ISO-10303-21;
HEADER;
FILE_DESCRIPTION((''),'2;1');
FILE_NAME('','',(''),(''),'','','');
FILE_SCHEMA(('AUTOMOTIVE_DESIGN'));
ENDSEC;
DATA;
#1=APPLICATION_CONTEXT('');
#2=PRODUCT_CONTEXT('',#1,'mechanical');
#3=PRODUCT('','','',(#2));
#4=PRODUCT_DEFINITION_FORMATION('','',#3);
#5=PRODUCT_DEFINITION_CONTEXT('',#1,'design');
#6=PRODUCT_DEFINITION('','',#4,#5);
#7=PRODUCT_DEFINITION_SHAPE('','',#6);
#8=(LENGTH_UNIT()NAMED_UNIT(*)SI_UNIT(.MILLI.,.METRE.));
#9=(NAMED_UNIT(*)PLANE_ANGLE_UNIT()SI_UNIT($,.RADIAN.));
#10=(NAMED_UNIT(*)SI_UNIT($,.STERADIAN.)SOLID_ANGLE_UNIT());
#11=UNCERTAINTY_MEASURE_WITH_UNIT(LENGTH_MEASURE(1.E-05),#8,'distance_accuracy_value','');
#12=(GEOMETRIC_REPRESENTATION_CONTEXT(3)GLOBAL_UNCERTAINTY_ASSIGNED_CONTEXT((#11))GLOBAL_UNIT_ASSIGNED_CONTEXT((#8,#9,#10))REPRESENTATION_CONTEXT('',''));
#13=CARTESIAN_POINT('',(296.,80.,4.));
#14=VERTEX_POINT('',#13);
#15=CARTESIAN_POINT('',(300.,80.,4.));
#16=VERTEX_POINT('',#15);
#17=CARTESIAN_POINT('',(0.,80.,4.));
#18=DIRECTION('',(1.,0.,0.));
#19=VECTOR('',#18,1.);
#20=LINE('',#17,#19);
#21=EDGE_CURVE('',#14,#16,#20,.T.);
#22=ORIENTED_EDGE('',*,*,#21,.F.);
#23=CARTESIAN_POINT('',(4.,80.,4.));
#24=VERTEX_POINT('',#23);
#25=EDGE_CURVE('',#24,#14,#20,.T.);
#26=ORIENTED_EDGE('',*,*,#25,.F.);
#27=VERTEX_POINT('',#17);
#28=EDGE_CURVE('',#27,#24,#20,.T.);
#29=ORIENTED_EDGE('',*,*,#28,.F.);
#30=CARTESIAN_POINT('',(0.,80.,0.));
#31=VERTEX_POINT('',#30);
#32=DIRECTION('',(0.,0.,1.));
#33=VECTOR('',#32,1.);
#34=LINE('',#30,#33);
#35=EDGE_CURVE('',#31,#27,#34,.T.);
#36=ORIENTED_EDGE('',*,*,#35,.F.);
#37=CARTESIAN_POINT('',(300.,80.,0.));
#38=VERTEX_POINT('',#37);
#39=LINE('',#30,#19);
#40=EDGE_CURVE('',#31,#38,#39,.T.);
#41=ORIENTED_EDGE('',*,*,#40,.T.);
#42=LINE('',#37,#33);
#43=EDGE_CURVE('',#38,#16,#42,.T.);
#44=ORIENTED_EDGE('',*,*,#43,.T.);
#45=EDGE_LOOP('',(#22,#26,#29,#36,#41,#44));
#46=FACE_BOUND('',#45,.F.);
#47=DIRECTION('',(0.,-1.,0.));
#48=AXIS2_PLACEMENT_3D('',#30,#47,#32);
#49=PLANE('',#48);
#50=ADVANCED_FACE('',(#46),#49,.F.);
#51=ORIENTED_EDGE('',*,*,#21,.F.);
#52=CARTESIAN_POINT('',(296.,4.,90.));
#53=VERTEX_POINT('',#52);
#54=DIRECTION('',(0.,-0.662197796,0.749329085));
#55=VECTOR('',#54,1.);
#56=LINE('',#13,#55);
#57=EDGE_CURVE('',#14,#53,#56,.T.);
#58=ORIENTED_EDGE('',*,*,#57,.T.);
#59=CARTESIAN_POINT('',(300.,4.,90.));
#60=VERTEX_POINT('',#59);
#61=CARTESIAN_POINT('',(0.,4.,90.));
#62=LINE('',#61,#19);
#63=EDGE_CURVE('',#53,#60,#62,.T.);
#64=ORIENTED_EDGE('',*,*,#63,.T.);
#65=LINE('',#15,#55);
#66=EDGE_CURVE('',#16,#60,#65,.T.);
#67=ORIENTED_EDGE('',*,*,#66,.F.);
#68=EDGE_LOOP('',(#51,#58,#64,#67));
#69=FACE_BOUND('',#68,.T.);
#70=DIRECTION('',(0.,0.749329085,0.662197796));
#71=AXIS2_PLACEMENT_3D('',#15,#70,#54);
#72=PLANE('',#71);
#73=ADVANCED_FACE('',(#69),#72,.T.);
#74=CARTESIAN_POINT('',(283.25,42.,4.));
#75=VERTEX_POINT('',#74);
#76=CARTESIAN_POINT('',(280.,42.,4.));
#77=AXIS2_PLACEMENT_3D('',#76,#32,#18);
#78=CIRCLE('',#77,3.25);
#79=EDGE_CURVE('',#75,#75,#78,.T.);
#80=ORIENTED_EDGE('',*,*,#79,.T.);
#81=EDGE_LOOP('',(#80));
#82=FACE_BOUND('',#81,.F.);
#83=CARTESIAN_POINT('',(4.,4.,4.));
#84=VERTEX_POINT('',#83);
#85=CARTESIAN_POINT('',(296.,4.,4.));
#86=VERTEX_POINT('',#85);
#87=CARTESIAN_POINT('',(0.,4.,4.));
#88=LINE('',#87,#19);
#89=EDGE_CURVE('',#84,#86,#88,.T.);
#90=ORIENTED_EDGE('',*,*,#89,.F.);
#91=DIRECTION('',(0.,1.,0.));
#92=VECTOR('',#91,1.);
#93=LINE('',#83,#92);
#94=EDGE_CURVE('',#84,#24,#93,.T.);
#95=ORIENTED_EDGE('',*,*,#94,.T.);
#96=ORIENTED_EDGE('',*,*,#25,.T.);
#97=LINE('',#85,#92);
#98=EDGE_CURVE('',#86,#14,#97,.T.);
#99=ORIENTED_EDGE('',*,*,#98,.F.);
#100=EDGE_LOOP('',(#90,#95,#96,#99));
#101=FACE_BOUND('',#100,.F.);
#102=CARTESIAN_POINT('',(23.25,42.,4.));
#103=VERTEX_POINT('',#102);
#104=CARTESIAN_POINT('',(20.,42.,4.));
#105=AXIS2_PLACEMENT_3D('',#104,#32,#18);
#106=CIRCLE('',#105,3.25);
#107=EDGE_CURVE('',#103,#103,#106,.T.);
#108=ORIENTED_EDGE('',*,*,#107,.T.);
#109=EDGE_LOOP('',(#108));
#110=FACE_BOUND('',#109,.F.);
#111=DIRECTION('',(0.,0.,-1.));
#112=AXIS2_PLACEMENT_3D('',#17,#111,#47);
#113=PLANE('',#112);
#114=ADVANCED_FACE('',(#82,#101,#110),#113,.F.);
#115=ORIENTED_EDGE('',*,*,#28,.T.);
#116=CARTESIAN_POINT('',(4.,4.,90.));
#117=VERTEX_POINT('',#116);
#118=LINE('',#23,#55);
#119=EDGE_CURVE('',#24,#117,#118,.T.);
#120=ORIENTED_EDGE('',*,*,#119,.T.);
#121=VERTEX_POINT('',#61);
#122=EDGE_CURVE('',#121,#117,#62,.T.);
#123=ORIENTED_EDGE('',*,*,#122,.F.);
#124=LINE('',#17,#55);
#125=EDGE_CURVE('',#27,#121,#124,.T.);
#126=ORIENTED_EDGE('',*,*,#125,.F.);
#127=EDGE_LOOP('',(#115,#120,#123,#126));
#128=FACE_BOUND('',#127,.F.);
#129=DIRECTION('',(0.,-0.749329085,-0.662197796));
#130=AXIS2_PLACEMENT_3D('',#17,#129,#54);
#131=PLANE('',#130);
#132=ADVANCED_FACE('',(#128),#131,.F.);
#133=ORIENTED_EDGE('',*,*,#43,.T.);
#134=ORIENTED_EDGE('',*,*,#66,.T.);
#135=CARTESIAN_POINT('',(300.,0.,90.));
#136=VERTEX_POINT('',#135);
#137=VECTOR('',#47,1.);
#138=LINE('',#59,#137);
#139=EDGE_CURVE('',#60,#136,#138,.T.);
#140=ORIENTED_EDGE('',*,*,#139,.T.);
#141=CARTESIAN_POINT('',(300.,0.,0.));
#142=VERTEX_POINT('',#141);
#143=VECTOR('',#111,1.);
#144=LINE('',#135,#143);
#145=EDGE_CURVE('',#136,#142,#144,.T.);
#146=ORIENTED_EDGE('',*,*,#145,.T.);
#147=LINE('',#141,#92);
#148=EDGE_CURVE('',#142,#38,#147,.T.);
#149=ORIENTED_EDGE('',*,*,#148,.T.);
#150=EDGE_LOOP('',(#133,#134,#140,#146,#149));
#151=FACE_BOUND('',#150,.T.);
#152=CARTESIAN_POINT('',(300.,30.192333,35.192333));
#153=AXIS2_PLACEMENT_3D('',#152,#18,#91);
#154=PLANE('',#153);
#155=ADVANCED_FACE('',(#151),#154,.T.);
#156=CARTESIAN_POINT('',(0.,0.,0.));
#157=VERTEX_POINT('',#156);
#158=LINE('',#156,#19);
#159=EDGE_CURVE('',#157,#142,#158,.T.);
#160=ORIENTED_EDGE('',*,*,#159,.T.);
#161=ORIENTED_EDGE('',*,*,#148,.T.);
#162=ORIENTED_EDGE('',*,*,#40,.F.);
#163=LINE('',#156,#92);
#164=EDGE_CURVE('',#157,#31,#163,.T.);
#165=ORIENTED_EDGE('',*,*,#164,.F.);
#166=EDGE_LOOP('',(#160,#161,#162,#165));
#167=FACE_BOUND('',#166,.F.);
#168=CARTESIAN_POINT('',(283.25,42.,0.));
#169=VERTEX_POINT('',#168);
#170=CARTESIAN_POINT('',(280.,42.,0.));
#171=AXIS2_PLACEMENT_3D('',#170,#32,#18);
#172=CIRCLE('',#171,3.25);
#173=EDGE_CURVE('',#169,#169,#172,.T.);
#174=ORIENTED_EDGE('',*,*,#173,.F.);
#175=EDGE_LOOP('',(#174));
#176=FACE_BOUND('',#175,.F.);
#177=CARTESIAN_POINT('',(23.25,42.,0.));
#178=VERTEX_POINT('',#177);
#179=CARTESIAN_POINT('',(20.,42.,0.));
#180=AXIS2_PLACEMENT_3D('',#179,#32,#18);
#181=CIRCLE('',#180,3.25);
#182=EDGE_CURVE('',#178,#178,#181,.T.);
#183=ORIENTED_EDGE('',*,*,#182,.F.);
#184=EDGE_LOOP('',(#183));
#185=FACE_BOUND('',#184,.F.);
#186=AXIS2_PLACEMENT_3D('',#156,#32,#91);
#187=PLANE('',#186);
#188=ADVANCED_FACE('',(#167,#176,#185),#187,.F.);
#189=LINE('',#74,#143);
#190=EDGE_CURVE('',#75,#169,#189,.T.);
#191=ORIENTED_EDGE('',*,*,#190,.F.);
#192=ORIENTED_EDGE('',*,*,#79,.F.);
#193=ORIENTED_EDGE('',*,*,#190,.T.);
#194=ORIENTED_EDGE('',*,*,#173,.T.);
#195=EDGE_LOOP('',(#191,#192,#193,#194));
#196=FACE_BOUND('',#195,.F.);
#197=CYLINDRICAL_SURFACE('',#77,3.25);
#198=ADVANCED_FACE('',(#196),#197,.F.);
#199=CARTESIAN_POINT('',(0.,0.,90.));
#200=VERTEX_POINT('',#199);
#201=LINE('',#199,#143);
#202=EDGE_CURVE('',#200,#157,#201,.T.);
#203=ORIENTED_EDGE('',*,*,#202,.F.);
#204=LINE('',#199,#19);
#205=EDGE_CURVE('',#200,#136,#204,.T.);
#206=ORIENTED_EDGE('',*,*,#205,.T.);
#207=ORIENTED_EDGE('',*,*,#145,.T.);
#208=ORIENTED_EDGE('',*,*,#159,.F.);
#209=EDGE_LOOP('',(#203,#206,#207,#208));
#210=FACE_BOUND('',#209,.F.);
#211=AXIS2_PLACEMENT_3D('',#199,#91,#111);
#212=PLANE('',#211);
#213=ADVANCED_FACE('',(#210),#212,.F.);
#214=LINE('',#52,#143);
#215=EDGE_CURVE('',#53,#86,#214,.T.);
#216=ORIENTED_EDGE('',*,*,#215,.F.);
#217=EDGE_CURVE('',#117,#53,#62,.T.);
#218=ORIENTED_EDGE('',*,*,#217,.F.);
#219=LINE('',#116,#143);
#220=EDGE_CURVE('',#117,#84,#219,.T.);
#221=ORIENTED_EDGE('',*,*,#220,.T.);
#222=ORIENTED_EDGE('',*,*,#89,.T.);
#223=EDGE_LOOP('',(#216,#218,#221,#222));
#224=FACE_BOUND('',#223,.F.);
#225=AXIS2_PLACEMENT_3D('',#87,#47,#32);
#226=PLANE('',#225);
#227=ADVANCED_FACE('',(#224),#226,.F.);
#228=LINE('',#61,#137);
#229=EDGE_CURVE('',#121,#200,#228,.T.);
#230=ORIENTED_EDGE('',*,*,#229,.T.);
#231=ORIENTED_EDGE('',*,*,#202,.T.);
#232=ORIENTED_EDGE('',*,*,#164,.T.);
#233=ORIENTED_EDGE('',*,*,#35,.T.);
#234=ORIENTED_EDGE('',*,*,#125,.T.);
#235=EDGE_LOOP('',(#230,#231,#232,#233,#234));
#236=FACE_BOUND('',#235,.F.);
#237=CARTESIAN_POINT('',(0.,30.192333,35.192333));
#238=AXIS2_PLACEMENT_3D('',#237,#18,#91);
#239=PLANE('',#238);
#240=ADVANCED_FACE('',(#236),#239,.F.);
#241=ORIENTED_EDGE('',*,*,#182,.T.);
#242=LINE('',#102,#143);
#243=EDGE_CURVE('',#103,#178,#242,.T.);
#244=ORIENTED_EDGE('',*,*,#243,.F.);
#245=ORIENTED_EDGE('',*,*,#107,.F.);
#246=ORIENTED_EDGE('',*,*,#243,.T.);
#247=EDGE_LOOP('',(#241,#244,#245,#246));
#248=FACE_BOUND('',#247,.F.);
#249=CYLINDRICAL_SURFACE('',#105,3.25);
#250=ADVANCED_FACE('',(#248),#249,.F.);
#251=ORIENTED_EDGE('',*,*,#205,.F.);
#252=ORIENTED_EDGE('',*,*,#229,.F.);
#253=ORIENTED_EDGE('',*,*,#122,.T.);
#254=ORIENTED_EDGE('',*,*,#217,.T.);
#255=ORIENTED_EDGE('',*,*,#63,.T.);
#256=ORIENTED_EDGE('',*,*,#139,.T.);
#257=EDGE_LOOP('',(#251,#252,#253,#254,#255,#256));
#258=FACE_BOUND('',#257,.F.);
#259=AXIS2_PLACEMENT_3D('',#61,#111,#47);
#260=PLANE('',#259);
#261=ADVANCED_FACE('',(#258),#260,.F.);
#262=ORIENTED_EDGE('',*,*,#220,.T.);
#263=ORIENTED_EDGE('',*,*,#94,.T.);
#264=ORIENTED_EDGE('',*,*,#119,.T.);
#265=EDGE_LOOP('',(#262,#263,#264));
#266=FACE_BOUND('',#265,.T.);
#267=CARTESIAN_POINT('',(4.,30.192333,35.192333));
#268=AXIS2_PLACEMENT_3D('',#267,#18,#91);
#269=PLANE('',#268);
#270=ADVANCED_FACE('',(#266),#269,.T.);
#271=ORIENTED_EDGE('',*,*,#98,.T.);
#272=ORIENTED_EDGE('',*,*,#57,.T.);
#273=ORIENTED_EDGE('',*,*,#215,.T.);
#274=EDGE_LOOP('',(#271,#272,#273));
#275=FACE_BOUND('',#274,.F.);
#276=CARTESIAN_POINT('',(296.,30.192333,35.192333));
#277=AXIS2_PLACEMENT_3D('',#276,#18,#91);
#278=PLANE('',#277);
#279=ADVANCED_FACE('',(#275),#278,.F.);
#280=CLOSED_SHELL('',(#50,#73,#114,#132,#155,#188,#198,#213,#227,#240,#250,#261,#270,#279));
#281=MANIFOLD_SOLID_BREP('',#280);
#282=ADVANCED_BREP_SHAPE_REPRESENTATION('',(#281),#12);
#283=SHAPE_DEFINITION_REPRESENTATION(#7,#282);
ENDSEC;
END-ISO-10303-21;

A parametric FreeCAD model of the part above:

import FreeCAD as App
import Part
import Sketcher


def add_polygon(sketch, points):
    """Adds a closed chain of lines whose ends are joined by coincident constraints."""
    first, n = sketch.GeometryCount, len(points)
    for a, b in zip(points, points[1:] + points[:1]):
        sketch.addGeometry(Part.LineSegment(App.Vector(*a, 0), App.Vector(*b, 0)), False)
    for i in range(n):
        sketch.addConstraint(Sketcher.Constraint("Coincident", first + i, 2, first + (i + 1) % n, 1))

doc = App.newDocument("Part")
body = doc.addObject("PartDesign::Body", "Body")

# Sketch on YZ plane
sketch1 = doc.addObject("Sketcher::SketchObject", "Sketch")
body.addObject(sketch1)
sketch1.AttachmentSupport = (doc.YZ_Plane, [""])
sketch1.MapMode = "FlatFace"
add_polygon(sketch1, [(0, 90), (0, 0), (80, 0), (80, 4), (4, 4), (4, 90)])  # lines 0-5
sketch1.addConstraint(Sketcher.Constraint("Vertical", 0))
sketch1.addConstraint(Sketcher.Constraint("Horizontal", 1))
sketch1.addConstraint(Sketcher.Constraint("Vertical", 2))
sketch1.addConstraint(Sketcher.Constraint("Horizontal", 3))
sketch1.addConstraint(Sketcher.Constraint("Vertical", 4))
sketch1.addConstraint(Sketcher.Constraint("Horizontal", 5))
sketch1.addConstraint(Sketcher.Constraint("Coincident", 0, 2, -1, 1))
sketch1.addConstraint(Sketcher.Constraint("Equal", 5, 2))
sketch1.addConstraint(Sketcher.Constraint("DistanceX", 1, 1, 1, 2, 80.0))
sketch1.addConstraint(Sketcher.Constraint("DistanceX", 3, 2, 3, 1, 76.0))
sketch1.addConstraint(Sketcher.Constraint("DistanceY", 0, 2, 0, 1, 90.0))
pad1 = doc.addObject("PartDesign::Pad", "Pad")
body.addObject(pad1)
pad1.Profile = sketch1
pad1.Length = 300

# Sketch on XY plane
sketch2 = doc.addObject("Sketcher::SketchObject", "Sketch001")
body.addObject(sketch2)
sketch2.AttachmentSupport = (doc.XY_Plane, [""])
sketch2.MapMode = "FlatFace"
sketch2.AttachmentOffset = App.Placement(App.Vector(0, 0, 4), App.Rotation())
sketch2.addGeometry(Part.Circle(App.Vector(20, 42, 0), App.Vector(0, 0, 1), 3.2), False)
sketch2.addGeometry(Part.Circle(App.Vector(280, 42, 0), App.Vector(0, 0, 1), 3.2), False)
sketch2.addConstraint(Sketcher.Constraint("Equal", 0, 1))
sketch2.addConstraint(Sketcher.Constraint("Horizontal", 0, 3, 1, 3))
sketch2.addConstraint(Sketcher.Constraint("Diameter", 0, 6.5))
sketch2.addConstraint(Sketcher.Constraint("DistanceX", -1, 1, 0, 3, 20.0))
sketch2.addConstraint(Sketcher.Constraint("DistanceY", -1, 1, 0, 3, 42.0))
sketch2.addConstraint(Sketcher.Constraint("DistanceX", -1, 1, 1, 3, 280.0))
pocket1 = doc.addObject("PartDesign::Pocket", "Pocket")
body.addObject(pocket1)
pocket1.Profile = sketch2
pocket1.Length = 25

# Sketch on YZ plane
sketch3 = doc.addObject("Sketcher::SketchObject", "Sketch002")
body.addObject(sketch3)
sketch3.AttachmentSupport = (doc.YZ_Plane, [""])
sketch3.MapMode = "FlatFace"
add_polygon(sketch3, [(4, 4), (80, 4), (4, 90)])  # lines 0-2
sketch3.addConstraint(Sketcher.Constraint("Horizontal", 0))
sketch3.addConstraint(Sketcher.Constraint("Vertical", 2))
sketch3.addConstraint(Sketcher.Constraint("DistanceX", 0, 1, 0, 2, 76.0))
sketch3.addConstraint(Sketcher.Constraint("DistanceY", 2, 2, 2, 1, 86.0))
sketch3.addConstraint(Sketcher.Constraint("DistanceX", -1, 1, 0, 2, 80.0))
sketch3.addConstraint(Sketcher.Constraint("DistanceY", -1, 1, 0, 2, 4.0))
pad2 = doc.addObject("PartDesign::Pad", "Pad001")
body.addObject(pad2)
pad2.Profile = sketch3
pad2.Length = 4

# Sketch on YZ plane
sketch4 = doc.addObject("Sketcher::SketchObject", "Sketch003")
body.addObject(sketch4)
sketch4.AttachmentSupport = (doc.YZ_Plane, [""])
sketch4.MapMode = "FlatFace"
sketch4.AttachmentOffset = App.Placement(App.Vector(0, 0, 300), App.Rotation())
add_polygon(sketch4, [(80, 4), (4, 90), (4, 4)])  # lines 0-2
sketch4.addConstraint(Sketcher.Constraint("Vertical", 1))
sketch4.addConstraint(Sketcher.Constraint("Horizontal", 2))
sketch4.addConstraint(Sketcher.Constraint("DistanceX", 2, 1, 2, 2, 76.0))
sketch4.addConstraint(Sketcher.Constraint("DistanceY", 1, 2, 1, 1, 86.0))
sketch4.addConstraint(Sketcher.Constraint("DistanceX", -1, 1, 0, 2, 4.0))
sketch4.addConstraint(Sketcher.Constraint("DistanceY", -1, 1, 0, 2, 90.0))
pad3 = doc.addObject("PartDesign::Pad", "Pad002")
body.addObject(pad3)
pad3.Profile = sketch4
pad3.Length = 4
pad3.Reversed = True

doc.recompute()
